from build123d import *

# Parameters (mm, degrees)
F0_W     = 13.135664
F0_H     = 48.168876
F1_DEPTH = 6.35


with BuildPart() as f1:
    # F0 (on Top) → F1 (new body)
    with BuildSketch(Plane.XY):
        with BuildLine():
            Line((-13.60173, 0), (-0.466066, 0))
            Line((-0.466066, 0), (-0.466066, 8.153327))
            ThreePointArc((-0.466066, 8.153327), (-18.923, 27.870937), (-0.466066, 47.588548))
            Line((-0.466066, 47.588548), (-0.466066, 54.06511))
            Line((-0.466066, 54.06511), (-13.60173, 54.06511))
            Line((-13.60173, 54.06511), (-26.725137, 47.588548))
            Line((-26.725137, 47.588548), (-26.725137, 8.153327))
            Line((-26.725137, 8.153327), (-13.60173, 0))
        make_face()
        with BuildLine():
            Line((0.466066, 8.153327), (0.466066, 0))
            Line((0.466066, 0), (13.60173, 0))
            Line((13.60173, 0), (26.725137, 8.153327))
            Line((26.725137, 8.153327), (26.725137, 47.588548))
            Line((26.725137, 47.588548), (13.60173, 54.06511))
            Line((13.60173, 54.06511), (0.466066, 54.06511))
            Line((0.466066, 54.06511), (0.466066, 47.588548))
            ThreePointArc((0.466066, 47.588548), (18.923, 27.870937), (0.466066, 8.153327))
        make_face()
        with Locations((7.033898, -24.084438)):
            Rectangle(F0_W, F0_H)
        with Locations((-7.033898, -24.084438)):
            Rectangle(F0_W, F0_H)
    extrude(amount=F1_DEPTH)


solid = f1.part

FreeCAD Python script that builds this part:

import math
import FreeCAD as App
import Part
import Sketcher

V = App.Vector
Q = App.Units.Quantity

doc = App.newDocument("Part")
body = doc.addObject("PartDesign::Body", "Body")
body.AllowCompound = True

sketch1 = body.newObject("Sketcher::SketchObject", "Sketch")
sketch1.AttachmentSupport = (doc.getObject("XY_Plane"), [""])
sketch1.MapMode = "FlatFace"
sketch1.addGeometry(Part.ArcOfCircle(Part.Circle(V(0.837665, 27.870938, 0), V(0, 0, 1), 19.760665), math.radians(93.782898), math.radians(266.217102)), False)
sketch1.addGeometry(Part.LineSegment(V(-0.466066, 47.588548, 0), V(-0.466066, 54.06511, 0)), False)
sketch1.addGeometry(Part.LineSegment(V(-0.466066, 54.06511, 0), V(-13.60173, 54.06511, 0)), False)
sketch1.addGeometry(Part.LineSegment(V(-13.60173, 54.06511, 0), V(-26.725137, 47.588548, 0)), False)
sketch1.addGeometry(Part.LineSegment(V(-26.725137, 47.588548, 0), V(-26.725137, 8.153327, 0)), False)
sketch1.addGeometry(Part.LineSegment(V(-26.725137, 8.153327, 0), V(-13.60173, 0, 0)), False)
sketch1.addGeometry(Part.LineSegment(V(-13.60173, 0, 0), V(-13.60173, -48.168876, 0)), False)
sketch1.addGeometry(Part.LineSegment(V(-13.60173, -48.168876, 0), V(-0.466066, -48.168876, 0)), False)
sketch1.addGeometry(Part.LineSegment(V(-0.466066, -48.168876, 0), V(-0.466066, 8.153327, 0)), False)
sketch1.addGeometry(Part.LineSegment(V(0.466066, 8.153327, 0), V(0.466066, -48.168876, 0)), False)
sketch1.addGeometry(Part.LineSegment(V(0.466066, -48.168876, 0), V(13.60173, -48.168876, 0)), False)
sketch1.addGeometry(Part.LineSegment(V(13.60173, -48.168876, 0), V(13.60173, 0, 0)), False)
sketch1.addGeometry(Part.LineSegment(V(13.60173, 0, 0), V(26.725137, 8.153327, 0)), False)
sketch1.addGeometry(Part.LineSegment(V(26.725137, 8.153327, 0), V(26.725137, 47.588548, 0)), False)
sketch1.addGeometry(Part.LineSegment(V(26.725137, 47.588548, 0), V(13.60173, 54.06511, 0)), False)
sketch1.addGeometry(Part.LineSegment(V(13.60173, 54.06511, 0), V(0.466066, 54.06511, 0)), False)
sketch1.addGeometry(Part.LineSegment(V(0.466066, 54.06511, 0), V(0.466066, 47.588548, 0)), False)
sketch1.addGeometry(Part.ArcOfCircle(Part.Circle(V(-0.837665, 27.870938, 0), V(0, 0, 1), 19.760665), math.radians(-86.217102), math.radians(86.217102)), False)
sketch1.addConstraint(Sketcher.Constraint("Coincident", 0, 1, 1, 1))
sketch1.addConstraint(Sketcher.Constraint("Coincident", 1, 2, 2, 1))
sketch1.addConstraint(Sketcher.Constraint("Coincident", 2, 2, 3, 1))
sketch1.addConstraint(Sketcher.Constraint("Coincident", 3, 2, 4, 1))
sketch1.addConstraint(Sketcher.Constraint("Coincident", 4, 2, 5, 1))
sketch1.addConstraint(Sketcher.Constraint("Coincident", 5, 2, 6, 1))
sketch1.addConstraint(Sketcher.Constraint("Coincident", 6, 2, 7, 1))
sketch1.addConstraint(Sketcher.Constraint("Coincident", 7, 2, 8, 1))
sketch1.addConstraint(Sketcher.Constraint("Coincident", 8, 2, 0, 2))
sketch1.addConstraint(Sketcher.Constraint("Coincident", 9, 2, 10, 1))
sketch1.addConstraint(Sketcher.Constraint("Coincident", 10, 2, 11, 1))
sketch1.addConstraint(Sketcher.Constraint("Coincident", 11, 2, 12, 1))
sketch1.addConstraint(Sketcher.Constraint("Coincident", 12, 2, 13, 1))
sketch1.addConstraint(Sketcher.Constraint("Coincident", 13, 2, 14, 1))
sketch1.addConstraint(Sketcher.Constraint("Coincident", 14, 2, 15, 1))
sketch1.addConstraint(Sketcher.Constraint("Coincident", 15, 2, 16, 1))
sketch1.addConstraint(Sketcher.Constraint("Coincident", 16, 2, 17, 2))
sketch1.addConstraint(Sketcher.Constraint("Coincident", 17, 1, 9, 1))
sketch1.addConstraint(Sketcher.Constraint("Vertical", 1))
sketch1.addConstraint(Sketcher.Constraint("Horizontal", 2))
sketch1.addConstraint(Sketcher.Constraint("Vertical", 4))
sketch1.addConstraint(Sketcher.Constraint("Vertical", 6))
sketch1.addConstraint(Sketcher.Constraint("Horizontal", 7))
sketch1.addConstraint(Sketcher.Constraint("Vertical", 8))
sketch1.addConstraint(Sketcher.Constraint("Vertical", 9))
sketch1.addConstraint(Sketcher.Constraint("Horizontal", 10))
sketch1.addConstraint(Sketcher.Constraint("Vertical", 11))
sketch1.addConstraint(Sketcher.Constraint("Vertical", 13))
sketch1.addConstraint(Sketcher.Constraint("Horizontal", 15))
sketch1.addConstraint(Sketcher.Constraint("Vertical", 16))
sketch1.addConstraint(Sketcher.Constraint("Equal", 0, 17))
sketch1.addConstraint(Sketcher.Constraint("Symmetric", 5, 2, 11, 2, -1, 1))
sketch1.addConstraint(Sketcher.Constraint("Symmetric", 0, 3, 17, 3, -2))
sketch1.addConstraint(Sketcher.Constraint("Symmetric", 7, 2, 9, 2, -2))
sketch1.addConstraint(Sketcher.Constraint("Symmetric", 4, 2, 12, 2, -2))
sketch1.addConstraint(Sketcher.Constraint("Symmetric", 2, 2, 14, 2, -2))
sketch1.addConstraint(Sketcher.Constraint("PointOnObject", 5, 2, -1))
sketch1.addConstraint(Sketcher.Constraint("Horizontal", 0, 1, 3, 2))
sketch1.addConstraint(Sketcher.Constraint("Horizontal", 4, 2, 8, 2))
sketch1.addConstraint(Sketcher.Constraint("Horizontal", 3, 2, 13, 2))
sketch1.addConstraint(Sketcher.Constraint("Horizontal", 13, 2, 16, 2))
sketch1.addConstraint(Sketcher.Constraint("Vertical", 2, 2, 5, 2))
sketch1.addConstraint(Sketcher.Constraint("Vertical", 1, 2, 7, 2))
sketch1.addConstraint(Sketcher.Constraint("Radius", 0, Q("19.760665 mm")))
sketch1.addConstraint(Sketcher.Constraint("DistanceY", 1, 1, 1, 2, Q("6.476562 mm")))
sketch1.addConstraint(Sketcher.Constraint("DistanceY", 4, 2, 4, 1, Q("39.435221 mm")))
sketch1.addConstraint(Sketcher.Constraint("DistanceX", 17, 3, 0, 1, Q("0.371599 mm")))
sketch1.addConstraint(Sketcher.Constraint("DistanceX", 3, 2, 0, 3, Q("27.562802 mm")))
sketch1.addConstraint(Sketcher.Constraint("DistanceX", 2, 2, 2, 1, Q("13.135664 mm")))
sketch1.addConstraint(Sketcher.Constraint("DistanceY", 6, 2, 6, 1, Q("48.168876 mm")))
sketch1.addConstraint(Sketcher.Constraint("DistanceY", 8, 1, 8, 2, Q("56.322203 mm")))
pad1 = body.newObject("PartDesign::Pad", "Pad")
pad1.Profile = sketch1
pad1.Length = Q("0.25 in")

doc.recompute()
